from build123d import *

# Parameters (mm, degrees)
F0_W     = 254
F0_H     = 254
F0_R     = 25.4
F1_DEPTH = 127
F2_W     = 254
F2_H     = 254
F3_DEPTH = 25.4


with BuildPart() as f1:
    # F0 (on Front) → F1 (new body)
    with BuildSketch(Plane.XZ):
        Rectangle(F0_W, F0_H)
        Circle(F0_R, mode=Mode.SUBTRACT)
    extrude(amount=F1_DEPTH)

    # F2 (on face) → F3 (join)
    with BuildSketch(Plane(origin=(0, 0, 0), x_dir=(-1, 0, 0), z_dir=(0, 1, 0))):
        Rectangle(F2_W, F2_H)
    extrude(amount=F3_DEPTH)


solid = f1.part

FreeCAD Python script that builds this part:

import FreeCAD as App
import Part
import Sketcher

V = App.Vector
Q = App.Units.Quantity


def add_polygon(sketch, points):
    """Adds a closed chain of lines whose ends are joined by coincident constraints."""
    first, n = sketch.GeometryCount, len(points)
    for a, b in zip(points, points[1:] + points[:1]):
        sketch.addGeometry(Part.LineSegment(App.Vector(*a, 0), App.Vector(*b, 0)), False)
    for i in range(n):
        sketch.addConstraint(Sketcher.Constraint("Coincident", first + i, 2, first + (i + 1) % n, 1))

doc = App.newDocument("Part")
body = doc.addObject("PartDesign::Body", "Body")

sketch1 = body.newObject("Sketcher::SketchObject", "Sketch")
sketch1.AttachmentSupport = (doc.getObject("XZ_Plane"), [""])
sketch1.MapMode = "FlatFace"
add_polygon(sketch1, [(-127, 127), (-127, -127), (127, -127), (127, 127)])
sketch1.addGeometry(Part.Circle(V(0, 0, 0), V(0, 0, 1), 25), False)
sketch1.addConstraint(Sketcher.Constraint("Vertical", 0))
sketch1.addConstraint(Sketcher.Constraint("Horizontal", 1))
sketch1.addConstraint(Sketcher.Constraint("Vertical", 2))
sketch1.addConstraint(Sketcher.Constraint("Horizontal", 3))
sketch1.addConstraint(Sketcher.Constraint("Coincident", 4, 3, -1, 1))
sketch1.addConstraint(Sketcher.Constraint("Symmetric", 0, 2, 2, 2, -1, 1))
sketch1.addConstraint(Sketcher.Constraint("Equal", 3, 0))
sketch1.addConstraint(Sketcher.Constraint("Diameter", 4, Q("2 in")))
sketch1.addConstraint(Sketcher.Constraint("DistanceX", 1, 1, 1, 2, Q("10 in")))
pad1 = body.newObject("PartDesign::Pad", "Pad")
pad1.Profile = sketch1
pad1.Length = Q("5 in")

sketch2 = body.newObject("Sketcher::SketchObject", "Sketch001")
sketch2.AttachmentSupport = (doc.getObject("XZ_Plane"), [""])
sketch2.MapMode = "FlatFace"
add_polygon(sketch2, [(127, 127), (127, -127), (-127, -127), (-127, 127)])
sketch2.addConstraint(Sketcher.Constraint("Vertical", 0))
sketch2.addConstraint(Sketcher.Constraint("Horizontal", 1))
sketch2.addConstraint(Sketcher.Constraint("Vertical", 2))
sketch2.addConstraint(Sketcher.Constraint("Horizontal", 3))
sketch2.addConstraint(Sketcher.Constraint("Symmetric", 0, 2, 2, 2, -1, 1))
sketch2.addConstraint(Sketcher.Constraint("Equal", 3, 0))
sketch2.addConstraint(Sketcher.Constraint("DistanceX", 1, 2, 1, 1, Q("10 in")))
pad2 = body.newObject("PartDesign::Pad", "Pad001")
pad2.Profile = sketch2
pad2.Length = Q("1 in")
pad2.Reversed = True

doc.recompute()
